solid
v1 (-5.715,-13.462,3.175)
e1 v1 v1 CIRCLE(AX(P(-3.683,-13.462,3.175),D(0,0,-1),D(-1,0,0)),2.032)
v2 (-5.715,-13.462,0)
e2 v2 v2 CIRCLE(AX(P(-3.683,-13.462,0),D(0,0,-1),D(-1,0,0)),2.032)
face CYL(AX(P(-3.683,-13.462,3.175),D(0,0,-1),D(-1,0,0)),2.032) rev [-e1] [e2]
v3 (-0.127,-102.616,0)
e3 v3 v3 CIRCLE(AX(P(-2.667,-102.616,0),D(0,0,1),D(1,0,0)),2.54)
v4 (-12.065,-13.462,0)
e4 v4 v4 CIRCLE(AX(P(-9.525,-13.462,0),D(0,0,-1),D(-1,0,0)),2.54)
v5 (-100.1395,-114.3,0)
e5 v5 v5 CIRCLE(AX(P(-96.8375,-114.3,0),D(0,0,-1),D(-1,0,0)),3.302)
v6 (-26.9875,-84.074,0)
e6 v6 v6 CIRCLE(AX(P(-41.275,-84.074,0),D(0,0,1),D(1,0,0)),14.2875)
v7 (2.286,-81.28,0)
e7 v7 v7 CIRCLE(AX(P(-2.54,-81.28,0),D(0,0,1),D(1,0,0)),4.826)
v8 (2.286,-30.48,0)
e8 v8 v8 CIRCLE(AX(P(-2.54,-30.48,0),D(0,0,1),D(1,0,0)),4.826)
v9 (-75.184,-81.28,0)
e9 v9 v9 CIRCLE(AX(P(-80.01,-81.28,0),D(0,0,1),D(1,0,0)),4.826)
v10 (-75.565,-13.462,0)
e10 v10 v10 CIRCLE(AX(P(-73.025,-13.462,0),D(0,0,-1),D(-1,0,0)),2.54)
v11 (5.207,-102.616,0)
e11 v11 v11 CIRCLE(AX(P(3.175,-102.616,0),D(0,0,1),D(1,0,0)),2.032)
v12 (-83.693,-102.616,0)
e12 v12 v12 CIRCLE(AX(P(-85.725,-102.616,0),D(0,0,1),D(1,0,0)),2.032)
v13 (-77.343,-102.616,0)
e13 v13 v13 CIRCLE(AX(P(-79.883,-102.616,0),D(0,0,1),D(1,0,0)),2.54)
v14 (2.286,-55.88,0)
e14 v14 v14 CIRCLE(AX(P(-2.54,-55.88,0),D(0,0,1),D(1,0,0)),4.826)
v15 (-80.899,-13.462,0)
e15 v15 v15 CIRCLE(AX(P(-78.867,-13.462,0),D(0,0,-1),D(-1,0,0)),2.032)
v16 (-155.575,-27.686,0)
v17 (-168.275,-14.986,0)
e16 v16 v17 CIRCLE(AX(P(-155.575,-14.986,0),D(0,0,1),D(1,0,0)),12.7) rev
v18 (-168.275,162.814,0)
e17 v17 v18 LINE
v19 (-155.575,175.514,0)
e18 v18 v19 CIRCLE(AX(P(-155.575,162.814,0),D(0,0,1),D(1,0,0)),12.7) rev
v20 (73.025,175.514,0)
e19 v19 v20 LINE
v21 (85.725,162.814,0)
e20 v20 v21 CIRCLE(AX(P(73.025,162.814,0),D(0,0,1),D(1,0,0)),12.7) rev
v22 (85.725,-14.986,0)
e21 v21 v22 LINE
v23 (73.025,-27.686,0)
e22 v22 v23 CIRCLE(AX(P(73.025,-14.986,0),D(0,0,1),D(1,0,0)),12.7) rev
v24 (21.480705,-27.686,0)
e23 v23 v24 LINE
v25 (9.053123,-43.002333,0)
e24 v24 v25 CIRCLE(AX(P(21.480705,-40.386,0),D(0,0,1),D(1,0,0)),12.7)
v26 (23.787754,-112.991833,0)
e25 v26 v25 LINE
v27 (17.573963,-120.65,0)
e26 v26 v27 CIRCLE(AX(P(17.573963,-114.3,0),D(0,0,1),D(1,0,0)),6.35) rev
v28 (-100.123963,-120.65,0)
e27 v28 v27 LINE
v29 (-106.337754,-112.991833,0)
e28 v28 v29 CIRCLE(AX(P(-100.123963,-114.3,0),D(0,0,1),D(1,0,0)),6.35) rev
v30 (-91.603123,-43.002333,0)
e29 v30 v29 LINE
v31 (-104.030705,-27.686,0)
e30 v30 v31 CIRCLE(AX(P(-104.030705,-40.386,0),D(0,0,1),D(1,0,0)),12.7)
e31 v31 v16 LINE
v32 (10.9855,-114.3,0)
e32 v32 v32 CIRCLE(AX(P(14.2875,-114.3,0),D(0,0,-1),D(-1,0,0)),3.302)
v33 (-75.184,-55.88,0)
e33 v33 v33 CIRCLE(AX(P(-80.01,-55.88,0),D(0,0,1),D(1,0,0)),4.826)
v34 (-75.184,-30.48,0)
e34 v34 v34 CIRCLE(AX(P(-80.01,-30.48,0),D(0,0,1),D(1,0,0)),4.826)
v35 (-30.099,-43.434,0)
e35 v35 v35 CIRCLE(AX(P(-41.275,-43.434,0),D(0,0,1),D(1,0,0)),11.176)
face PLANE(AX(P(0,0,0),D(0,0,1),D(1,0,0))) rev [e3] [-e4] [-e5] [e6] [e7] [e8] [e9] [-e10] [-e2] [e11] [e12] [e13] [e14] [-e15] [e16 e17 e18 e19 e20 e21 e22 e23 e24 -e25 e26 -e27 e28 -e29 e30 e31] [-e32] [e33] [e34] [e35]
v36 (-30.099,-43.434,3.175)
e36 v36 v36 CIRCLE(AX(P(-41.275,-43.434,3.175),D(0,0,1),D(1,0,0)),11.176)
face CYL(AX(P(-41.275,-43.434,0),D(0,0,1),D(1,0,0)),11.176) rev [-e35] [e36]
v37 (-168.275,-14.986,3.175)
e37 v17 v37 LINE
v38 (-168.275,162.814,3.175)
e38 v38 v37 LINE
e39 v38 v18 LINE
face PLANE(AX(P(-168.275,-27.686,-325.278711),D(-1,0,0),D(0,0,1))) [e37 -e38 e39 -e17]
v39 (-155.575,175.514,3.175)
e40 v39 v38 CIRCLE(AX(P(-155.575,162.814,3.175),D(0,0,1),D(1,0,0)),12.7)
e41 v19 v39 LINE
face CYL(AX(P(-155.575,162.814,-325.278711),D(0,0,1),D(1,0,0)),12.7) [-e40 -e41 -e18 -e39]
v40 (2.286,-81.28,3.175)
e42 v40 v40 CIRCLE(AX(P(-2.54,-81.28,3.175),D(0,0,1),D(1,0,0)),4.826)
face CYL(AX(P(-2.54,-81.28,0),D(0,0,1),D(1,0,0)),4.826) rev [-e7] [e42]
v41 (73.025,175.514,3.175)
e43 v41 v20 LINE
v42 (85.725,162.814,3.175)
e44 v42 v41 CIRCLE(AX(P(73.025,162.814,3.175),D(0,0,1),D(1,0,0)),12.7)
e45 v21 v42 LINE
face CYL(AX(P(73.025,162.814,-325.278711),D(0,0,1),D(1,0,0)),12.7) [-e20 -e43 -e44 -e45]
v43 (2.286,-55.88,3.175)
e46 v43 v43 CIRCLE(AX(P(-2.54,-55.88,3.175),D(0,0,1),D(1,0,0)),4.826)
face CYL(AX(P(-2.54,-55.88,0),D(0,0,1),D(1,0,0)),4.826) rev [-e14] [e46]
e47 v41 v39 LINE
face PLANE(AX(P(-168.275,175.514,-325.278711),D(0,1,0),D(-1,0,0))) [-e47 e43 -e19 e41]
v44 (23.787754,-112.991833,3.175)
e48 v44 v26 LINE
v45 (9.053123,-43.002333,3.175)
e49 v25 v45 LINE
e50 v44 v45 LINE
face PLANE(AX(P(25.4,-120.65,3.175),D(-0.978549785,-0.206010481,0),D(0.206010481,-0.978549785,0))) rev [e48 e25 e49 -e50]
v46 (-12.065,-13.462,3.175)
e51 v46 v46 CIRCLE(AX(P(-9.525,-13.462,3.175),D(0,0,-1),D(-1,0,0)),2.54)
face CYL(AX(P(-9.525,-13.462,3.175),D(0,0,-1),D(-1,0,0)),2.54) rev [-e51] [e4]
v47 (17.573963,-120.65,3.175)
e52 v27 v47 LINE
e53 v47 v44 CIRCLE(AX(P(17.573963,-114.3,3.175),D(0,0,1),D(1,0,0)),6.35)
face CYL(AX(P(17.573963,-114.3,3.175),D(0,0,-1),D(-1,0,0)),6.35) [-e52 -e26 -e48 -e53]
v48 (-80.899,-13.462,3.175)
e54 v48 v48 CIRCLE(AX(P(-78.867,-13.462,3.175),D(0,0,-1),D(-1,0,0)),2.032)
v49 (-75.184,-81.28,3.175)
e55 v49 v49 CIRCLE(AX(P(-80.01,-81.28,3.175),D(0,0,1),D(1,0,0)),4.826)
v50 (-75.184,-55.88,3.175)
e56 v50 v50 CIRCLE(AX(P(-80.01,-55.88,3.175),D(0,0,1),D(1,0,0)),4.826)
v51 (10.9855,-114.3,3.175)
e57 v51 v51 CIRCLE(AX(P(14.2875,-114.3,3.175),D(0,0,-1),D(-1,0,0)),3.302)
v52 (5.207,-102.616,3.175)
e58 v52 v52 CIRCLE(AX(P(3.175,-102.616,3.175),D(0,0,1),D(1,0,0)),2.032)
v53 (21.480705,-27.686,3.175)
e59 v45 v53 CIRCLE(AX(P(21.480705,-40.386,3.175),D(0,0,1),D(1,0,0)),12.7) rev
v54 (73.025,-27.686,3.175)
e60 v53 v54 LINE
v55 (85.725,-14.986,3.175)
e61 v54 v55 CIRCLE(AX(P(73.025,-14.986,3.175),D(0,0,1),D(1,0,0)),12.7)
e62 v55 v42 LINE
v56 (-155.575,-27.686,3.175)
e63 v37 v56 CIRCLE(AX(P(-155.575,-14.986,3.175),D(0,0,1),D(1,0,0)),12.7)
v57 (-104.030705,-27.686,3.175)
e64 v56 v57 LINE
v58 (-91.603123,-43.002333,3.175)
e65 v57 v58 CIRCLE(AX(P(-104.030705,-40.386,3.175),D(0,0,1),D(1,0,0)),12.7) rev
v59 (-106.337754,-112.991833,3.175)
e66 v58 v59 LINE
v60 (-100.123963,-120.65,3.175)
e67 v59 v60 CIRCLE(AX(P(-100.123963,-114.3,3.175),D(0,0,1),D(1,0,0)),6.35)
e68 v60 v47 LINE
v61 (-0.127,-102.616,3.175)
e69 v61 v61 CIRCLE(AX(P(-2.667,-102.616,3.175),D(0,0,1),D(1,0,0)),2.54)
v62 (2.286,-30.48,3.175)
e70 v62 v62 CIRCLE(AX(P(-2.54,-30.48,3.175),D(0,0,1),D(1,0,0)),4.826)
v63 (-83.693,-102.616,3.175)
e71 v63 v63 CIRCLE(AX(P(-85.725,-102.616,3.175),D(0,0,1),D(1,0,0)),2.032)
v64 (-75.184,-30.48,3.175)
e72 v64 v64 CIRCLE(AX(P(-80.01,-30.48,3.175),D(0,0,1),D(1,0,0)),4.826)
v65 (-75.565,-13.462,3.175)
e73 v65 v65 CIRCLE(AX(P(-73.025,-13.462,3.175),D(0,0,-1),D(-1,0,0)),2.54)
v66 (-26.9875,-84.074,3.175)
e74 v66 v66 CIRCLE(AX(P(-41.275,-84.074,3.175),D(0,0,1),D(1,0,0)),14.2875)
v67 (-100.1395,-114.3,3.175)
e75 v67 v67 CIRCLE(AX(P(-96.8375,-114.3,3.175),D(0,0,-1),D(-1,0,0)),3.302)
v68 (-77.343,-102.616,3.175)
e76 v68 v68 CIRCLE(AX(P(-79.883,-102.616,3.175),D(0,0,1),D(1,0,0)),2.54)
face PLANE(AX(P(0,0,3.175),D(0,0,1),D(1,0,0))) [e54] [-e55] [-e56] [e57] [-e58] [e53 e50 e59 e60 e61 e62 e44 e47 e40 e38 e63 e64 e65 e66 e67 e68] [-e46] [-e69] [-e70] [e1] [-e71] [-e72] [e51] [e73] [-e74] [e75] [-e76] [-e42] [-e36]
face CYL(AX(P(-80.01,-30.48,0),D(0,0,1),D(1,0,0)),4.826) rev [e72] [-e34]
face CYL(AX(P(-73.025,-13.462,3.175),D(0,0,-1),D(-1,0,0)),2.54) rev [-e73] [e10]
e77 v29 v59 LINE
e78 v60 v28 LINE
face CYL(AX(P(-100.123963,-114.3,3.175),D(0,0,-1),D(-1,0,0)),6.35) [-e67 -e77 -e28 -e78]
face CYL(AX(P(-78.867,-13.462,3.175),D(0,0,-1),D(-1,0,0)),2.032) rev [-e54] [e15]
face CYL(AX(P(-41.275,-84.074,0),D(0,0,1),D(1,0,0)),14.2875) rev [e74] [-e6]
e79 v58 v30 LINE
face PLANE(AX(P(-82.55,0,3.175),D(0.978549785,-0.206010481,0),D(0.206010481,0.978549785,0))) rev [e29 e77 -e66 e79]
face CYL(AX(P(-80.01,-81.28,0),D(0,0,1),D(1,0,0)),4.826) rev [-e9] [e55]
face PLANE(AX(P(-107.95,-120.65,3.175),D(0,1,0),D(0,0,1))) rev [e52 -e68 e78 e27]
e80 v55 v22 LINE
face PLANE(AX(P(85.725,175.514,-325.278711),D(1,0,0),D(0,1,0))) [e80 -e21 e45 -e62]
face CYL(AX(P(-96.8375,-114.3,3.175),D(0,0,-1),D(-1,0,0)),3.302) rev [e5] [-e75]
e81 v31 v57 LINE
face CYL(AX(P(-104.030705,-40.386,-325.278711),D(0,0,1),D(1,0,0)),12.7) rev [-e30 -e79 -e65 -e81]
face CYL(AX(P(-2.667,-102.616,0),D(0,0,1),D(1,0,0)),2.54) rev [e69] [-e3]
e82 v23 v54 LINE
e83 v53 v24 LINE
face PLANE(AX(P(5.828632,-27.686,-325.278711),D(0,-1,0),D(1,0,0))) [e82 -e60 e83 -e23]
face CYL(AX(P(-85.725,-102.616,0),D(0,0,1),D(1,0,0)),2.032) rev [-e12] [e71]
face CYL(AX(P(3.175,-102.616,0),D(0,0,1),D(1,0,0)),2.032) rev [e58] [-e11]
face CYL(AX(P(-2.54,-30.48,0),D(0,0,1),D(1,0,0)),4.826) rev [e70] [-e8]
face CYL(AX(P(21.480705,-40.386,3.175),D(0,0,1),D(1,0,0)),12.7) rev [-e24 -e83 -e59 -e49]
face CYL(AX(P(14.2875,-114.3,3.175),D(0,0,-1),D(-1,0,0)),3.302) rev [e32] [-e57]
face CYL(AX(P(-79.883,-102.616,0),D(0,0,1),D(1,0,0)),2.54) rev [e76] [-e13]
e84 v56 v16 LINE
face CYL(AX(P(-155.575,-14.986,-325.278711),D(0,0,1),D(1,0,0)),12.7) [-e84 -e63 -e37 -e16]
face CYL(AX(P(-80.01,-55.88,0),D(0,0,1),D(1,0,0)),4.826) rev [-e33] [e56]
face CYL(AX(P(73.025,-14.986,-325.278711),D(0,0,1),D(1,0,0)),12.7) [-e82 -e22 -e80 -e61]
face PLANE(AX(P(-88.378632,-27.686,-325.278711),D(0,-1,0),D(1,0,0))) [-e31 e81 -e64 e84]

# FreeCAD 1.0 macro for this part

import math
import FreeCAD as App
import Part
import Sketcher
Q = App.Units.Quantity


def edges_at(feature, points):
    """Names of the edges that pass closest to the given points."""
    edges = feature.Shape.Edges
    near = lambda p: min(range(len(edges)), key=lambda i: edges[i].distToShape(Part.Vertex(*p))[0])
    return sorted({f"Edge{near(p) + 1}" for p in points})


def add_polygon(sketch, points):
    """Adds a closed chain of lines whose ends are joined by coincident constraints."""
    first, n = sketch.GeometryCount, len(points)
    for a, b in zip(points, points[1:] + points[:1]):
        sketch.addGeometry(Part.LineSegment(App.Vector(*a, 0), App.Vector(*b, 0)), False)
    for i in range(n):
        sketch.addConstraint(Sketcher.Constraint("Coincident", first + i, 2, first + (i + 1) % n, 1))

doc = App.newDocument("Part")
body = doc.addObject("PartDesign::Body", "Body")

sketch1 = body.newObject("Sketcher::SketchObject", "Sketch")
sketch1.AttachmentSupport = (doc.getObject("XY_Plane"), [""])
sketch1.MapMode = "FlatFace"
add_polygon(sketch1, [(0, 0), (-83, 0), (-108, -121), (25, -121)])
sketch1.addConstraint(Sketcher.Constraint("Horizontal", 0))
sketch1.addConstraint(Sketcher.Constraint("Horizontal", 2))
sketch1.addConstraint(Sketcher.Constraint("Coincident", 3, 2, -1, 1))
sketch1.addConstraint(Sketcher.Constraint("Equal", 1, 3))
sketch1.addConstraint(Sketcher.Constraint("DistanceX", -1, 1, 2, 2, Q("1 in")))
sketch1.addConstraint(Sketcher.Constraint("DistanceX", 0, 2, 0, 1, Q("3.25 in")))
sketch1.addConstraint(Sketcher.Constraint("DistanceY", 1, 2, -1, 1, Q("4.75 in")))
pad1 = body.newObject("PartDesign::Pad", "Pad")
pad1.Profile = sketch1
pad1.Length = Q("0.125 in")
doc.recompute()

fillet = body.newObject("PartDesign::Fillet", "Fillet")
fillet.Base = (pad1, edges_at(pad1, [
    (25.4, -120.65, 1.587),
    (-107.95, -120.65, 1.587),
    (-82.55, 0, 1.587),
    (0, 0, 1.587),
]))
fillet.Radius = Q("0.25 in")

sketch2 = body.newObject("Sketcher::SketchObject", "Sketch001")
sketch2.AttachmentSupport = (doc.getObject("XY_Plane"), [""])
sketch2.MapMode = "FlatFace"
sketch2.addGeometry(Part.Circle(App.Vector(14.3, -114.3, 0), App.Vector(0, 0, 1), 3.3), False)
sketch2.addGeometry(Part.Circle(App.Vector(-96.8, -114.3, 0), App.Vector(0, 0, 1), 3.3), False)
sketch2.addConstraint(Sketcher.Constraint("Equal", 0, 1))
sketch2.addConstraint(Sketcher.Constraint("Horizontal", 0, 3, 1, 3))
sketch2.addConstraint(Sketcher.Constraint("Diameter", 0, Q("0.26 in")))
sketch2.addConstraint(Sketcher.Constraint("DistanceY", 0, 3, -1, 1, Q("4.5 in")))
sketch2.addConstraint(Sketcher.Constraint("DistanceX", -1, 1, 0, 3, Q("0.5625 in")))
sketch2.addConstraint(Sketcher.Constraint("DistanceX", 1, 3, -1, 1, Q("3.8125 in")))
pocket1 = body.newObject("PartDesign::Pocket", "Pocket")
pocket1.Profile = sketch2
pocket1.Type = "ThroughAll"
pocket1.Reversed = True

sketch3 = body.newObject("Sketcher::SketchObject", "Sketch002")
sketch3.AttachmentSupport = (doc.getObject("XY_Plane"), [""])
sketch3.MapMode = "FlatFace"
sketch3.addGeometry(Part.Circle(App.Vector(-9.5, -13.5, 0), App.Vector(0, 0, 1), 2.5), False)
sketch3.addGeometry(Part.Circle(App.Vector(-73, -13.5, 0), App.Vector(0, 0, 1), 2.5), False)
sketch3.addGeometry(Part.Circle(App.Vector(-3.7, -13.5, 0), App.Vector(0, 0, 1), 2), False)
sketch3.addGeometry(Part.Circle(App.Vector(-78.9, -13.5, 0), App.Vector(0, 0, 1), 2), False)
sketch3.addConstraint(Sketcher.Constraint("Equal", 0, 1))
sketch3.addConstraint(Sketcher.Constraint("Equal", 2, 3))
sketch3.addConstraint(Sketcher.Constraint("Horizontal", 0, 3, 1, 3))
sketch3.addConstraint(Sketcher.Constraint("Horizontal", 1, 3, 2, 3))
sketch3.addConstraint(Sketcher.Constraint("Horizontal", 2, 3, 3, 3))
sketch3.addConstraint(Sketcher.Constraint("Diameter", 0, Q("0.2 in")))
sketch3.addConstraint(Sketcher.Constraint("Diameter", 2, Q("0.16 in")))
sketch3.addConstraint(Sketcher.Constraint("DistanceX", 1, 3, 0, 3, Q("2.5 in")))
sketch3.addConstraint(Sketcher.Constraint("DistanceY", 0, 3, -1, 1, Q("0.53 in")))
sketch3.addConstraint(Sketcher.Constraint("DistanceX", 0, 3, 2, 3, Q("0.23 in")))
sketch3.addConstraint(Sketcher.Constraint("DistanceX", 3, 3, 1, 3, Q("0.23 in")))
sketch3.addConstraint(Sketcher.Constraint("DistanceX", 0, 3, -1, 1, Q("0.375 in")))
pocket2 = body.newObject("PartDesign::Pocket", "Pocket001")
pocket2.Profile = sketch3
pocket2.Type = "ThroughAll"
pocket2.Reversed = True

sketch4 = body.newObject("Sketcher::SketchObject", "Sketch003")
sketch4.AttachmentSupport = (doc.getObject("XY_Plane"), [""])
sketch4.MapMode = "FlatFace"
sketch4.AttachmentOffset = App.Placement(App.Vector(0, 0, 0.125 * 25.4), App.Rotation())
sketch4.addGeometry(Part.Circle(App.Vector(-41.3, -84.1, 0), App.Vector(0, 0, 1), 14.3), False)
sketch4.addGeometry(Part.Circle(App.Vector(-41.3, -43.4, 0), App.Vector(0, 0, 1), 11.2), False)
sketch4.addGeometry(Part.Circle(App.Vector(-2.7, -102.6, 0), App.Vector(0, 0, 1), 2.5), False)
sketch4.addGeometry(Part.Circle(App.Vector(-79.9, -102.6, 0), App.Vector(0, 0, 1), 2.5), False)
sketch4.addGeometry(Part.Circle(App.Vector(-85.7, -102.6, 0), App.Vector(0, 0, 1), 2), False)
sketch4.addGeometry(Part.Circle(App.Vector(3.2, -102.6, 0), App.Vector(0, 0, 1), 2), False)
sketch4.addConstraint(Sketcher.Constraint("Equal", 2, 3))
sketch4.addConstraint(Sketcher.Constraint("Equal", 4, 5))
sketch4.addConstraint(Sketcher.Constraint("Horizontal", 2, 3, 3, 3))
sketch4.addConstraint(Sketcher.Constraint("Horizontal", 3, 3, 4, 3))
sketch4.addConstraint(Sketcher.Constraint("Horizontal", 4, 3, 5, 3))
sketch4.addConstraint(Sketcher.Constraint("Vertical", 0, 3, 1, 3))
sketch4.addConstraint(Sketcher.Constraint("Diameter", 2, Q("0.2 in")))
sketch4.addConstraint(Sketcher.Constraint("Diameter", 1, Q("0.88 in")))
sketch4.addConstraint(Sketcher.Constraint("Diameter", 4, Q("0.16 in")))
sketch4.addConstraint(Sketcher.Constraint("Diameter", 0, Q("1.125 in")))
sketch4.addConstraint(Sketcher.Constraint("DistanceY", 0, 3, 1, 3, Q("1.6 in")))
sketch4.addConstraint(Sketcher.Constraint("DistanceX", 4, 3, 5, 3, Q("3.5 in")))
sketch4.addConstraint(Sketcher.Constraint("DistanceY", 0, 3, -1, 1, Q("3.31 in")))
sketch4.addConstraint(Sketcher.Constraint("DistanceY", 2, 3, -1, 1, Q("4.04 in")))
sketch4.addConstraint(Sketcher.Constraint("DistanceX", 0, 3, 2, 3, Q("1.52 in")))
sketch4.addConstraint(Sketcher.Constraint("DistanceX", 3, 3, 0, 3, Q("1.52 in")))
sketch4.addConstraint(Sketcher.Constraint("DistanceX", 4, 3, 3, 3, Q("0.23 in")))
sketch4.addConstraint(Sketcher.Constraint("DistanceX", 0, 3, -1, 1, Q("1.625 in")))
pocket3 = body.newObject("PartDesign::Pocket", "Pocket002")
pocket3.Profile = sketch4
pocket3.Type = "ThroughAll"

sketch5 = body.newObject("Sketcher::SketchObject", "Sketch004")
sketch5.AttachmentSupport = (doc.getObject("XY_Plane"), [""])
sketch5.MapMode = "FlatFace"
sketch5.AttachmentOffset = App.Placement(App.Vector(0, 0, 0.125 * 25.4), App.Rotation())
sketch5.addGeometry(Part.Circle(App.Vector(-80, -30.5, 0), App.Vector(0, 0, 1), 4.8), False)
sketch5.addGeometry(Part.Circle(App.Vector(-80, -55.9, 0), App.Vector(0, 0, 1), 4.8), False)
sketch5.addGeometry(Part.Circle(App.Vector(-80, -81.3, 0), App.Vector(0, 0, 1), 4.8), False)
sketch5.addGeometry(Part.Circle(App.Vector(-2.5, -81.3, 0), App.Vector(0, 0, 1), 4.8), False)
sketch5.addGeometry(Part.Circle(App.Vector(-2.5, -55.9, 0), App.Vector(0, 0, 1), 4.8), False)
sketch5.addGeometry(Part.Circle(App.Vector(-2.5, -30.5, 0), App.Vector(0, 0, 1), 4.8), False)
sketch5.addConstraint(Sketcher.Constraint("Equal", 0, 1))
sketch5.addConstraint(Sketcher.Constraint("Equal", 1, 2))
sketch5.addConstraint(Sketcher.Constraint("Equal", 2, 3))
sketch5.addConstraint(Sketcher.Constraint("Equal", 3, 4))
sketch5.addConstraint(Sketcher.Constraint("Equal", 4, 5))
sketch5.addConstraint(Sketcher.Constraint("Horizontal", 2, 3, 3, 3))
sketch5.addConstraint(Sketcher.Constraint("Horizontal", 1, 3, 4, 3))
sketch5.addConstraint(Sketcher.Constraint("Horizontal", 0, 3, 5, 3))
sketch5.addConstraint(Sketcher.Constraint("Vertical", 0, 3, 1, 3))
sketch5.addConstraint(Sketcher.Constraint("Vertical", 1, 3, 2, 3))
sketch5.addConstraint(Sketcher.Constraint("Vertical", 3, 3, 4, 3))
sketch5.addConstraint(Sketcher.Constraint("Vertical", 4, 3, 5, 3))
sketch5.addConstraint(Sketcher.Constraint("Diameter", 0, Q("0.38 in")))
sketch5.addConstraint(Sketcher.Constraint("DistanceY", 1, 3, 0, 3, Q("1 in")))
sketch5.addConstraint(Sketcher.Constraint("DistanceY", 2, 3, 1, 3, Q("1 in")))
sketch5.addConstraint(Sketcher.Constraint("DistanceY", 0, 3, -1, 1, Q("1.2 in")))
sketch5.addConstraint(Sketcher.Constraint("DistanceX", 3, 3, -1, 1, Q("0.1 in")))
sketch5.addConstraint(Sketcher.Constraint("DistanceX", 0, 3, -1, 1, Q("3.15 in")))
pocket4 = body.newObject("PartDesign::Pocket", "Pocket003")
pocket4.Profile = sketch5
pocket4.Type = "ThroughAll"

sketch6 = body.newObject("Sketcher::SketchObject", "Sketch005")
sketch6.AttachmentSupport = (doc.getObject("XY_Plane"), [""])
sketch6.MapMode = "FlatFace"
sketch6.AttachmentOffset = App.Placement(App.Vector(0, 0, 0.125 * 25.4), App.Rotation())
sketch6.addGeometry(Part.LineSegment(App.Vector(-168, -28, 0), App.Vector(-88, -28, 0)), False)
sketch6.addGeometry(Part.LineSegment(App.Vector(-88, -28, 0), App.Vector(-84, -5, 0)), False)
sketch6.addGeometry(Part.ArcOfCircle(Part.Circle(App.Vector(-77, -6, 0), App.Vector(0, 0, 1), 6), math.radians(90), math.radians(168)), False)
sketch6.addGeometry(Part.LineSegment(App.Vector(-77, 0, 0), App.Vector(-5, 0, 0)), False)
sketch6.addGeometry(Part.ArcOfCircle(Part.Circle(App.Vector(-5, -6, 0), App.Vector(0, 0, 1), 6), math.radians(12), math.radians(90)), False)
sketch6.addGeometry(Part.LineSegment(App.Vector(1, -5, 0), App.Vector(6, -28, 0)), False)
sketch6.addGeometry(Part.LineSegment(App.Vector(6, -28, 0), App.Vector(86, -28, 0)), False)
sketch6.addGeometry(Part.LineSegment(App.Vector(86, -28, 0), App.Vector(86, 176, 0)), False)
sketch6.addGeometry(Part.LineSegment(App.Vector(86, 176, 0), App.Vector(-168, 176, 0)), False)
sketch6.addGeometry(Part.LineSegment(App.Vector(-168, 176, 0), App.Vector(-168, -28, 0)), False)
sketch6.addConstraint(Sketcher.Constraint("Coincident", 0, 2, 1, 1))
sketch6.addConstraint(Sketcher.Constraint("Tangent", 1, 2, 2, 2))
sketch6.addConstraint(Sketcher.Constraint("Tangent", 2, 1, 3, 1))
sketch6.addConstraint(Sketcher.Constraint("Tangent", 3, 2, 4, 2))
sketch6.addConstraint(Sketcher.Constraint("Tangent", 4, 1, 5, 1))
sketch6.addConstraint(Sketcher.Constraint("Coincident", 5, 2, 6, 1))
sketch6.addConstraint(Sketcher.Constraint("Coincident", 6, 2, 7, 1))
sketch6.addConstraint(Sketcher.Constraint("Coincident", 7, 2, 8, 1))
sketch6.addConstraint(Sketcher.Constraint("Coincident", 8, 2, 9, 1))
sketch6.addConstraint(Sketcher.Constraint("Coincident", 9, 2, 0, 1))
sketch6.addConstraint(Sketcher.Constraint("Horizontal", 0))
sketch6.addConstraint(Sketcher.Constraint("Horizontal", 3))
sketch6.addConstraint(Sketcher.Constraint("Horizontal", 6))
sketch6.addConstraint(Sketcher.Constraint("Vertical", 7))
sketch6.addConstraint(Sketcher.Constraint("Horizontal", 8))
sketch6.addConstraint(Sketcher.Constraint("Vertical", 9))
sketch6.addConstraint(Sketcher.Constraint("Equal", 2, 4))
sketch6.addConstraint(Sketcher.Constraint("PointOnObject", 2, 1, -1))
sketch6.addConstraint(Sketcher.Constraint("Horizontal", 1, 2, 4, 1))
sketch6.addConstraint(Sketcher.Constraint("Horizontal", 0, 2, 5, 2))
sketch6.addConstraint(Sketcher.Constraint("Equal", 0, 6))
sketch6.addConstraint(Sketcher.Constraint("DistanceX", 8, 2, 8, 1, Q("10 in")))
sketch6.addConstraint(Sketcher.Constraint("DistanceY", 7, 1, 7, 2, Q("8 in")))
sketch6.addConstraint(Sketcher.Constraint("Radius", 2, Q("0.25 in")))
sketch6.addConstraint(Sketcher.Constraint("DistanceY", 0, 2, -1, 1, Q("1.09 in")))
sketch6.addConstraint(Sketcher.Constraint("DistanceX", -1, 1, 6, 2, Q("3.375 in")))
sketch6.addConstraint(Sketcher.Constraint("DistanceX", 0, 1, 0, 2, Q("79.896368 mm")))
sketch6.addConstraint(Sketcher.Constraint("DistanceX", 3, 1, 3, 2, Q("72.245295 mm")))
pad2 = body.newObject("PartDesign::Pad", "Pad001")
pad2.Profile = sketch6
pad2.Length = Q("0.125 in")
pad2.Reversed = True
doc.recompute()

fillet2 = body.newObject("PartDesign::Fillet", "Fillet001")
fillet2.Base = (pad2, edges_at(pad2, [(-88.379, -27.686, 1.587), (5.829, -27.686, 1.587)]))
fillet2.Radius = Q("0.5 in")
doc.recompute()

fillet3 = body.newObject("PartDesign::Fillet", "Fillet002")
fillet3.Base = (fillet2, edges_at(fillet2, [
    (-168.275, -27.686, 1.587),
    (-168.275, 175.514, 1.587),
    (85.725, 175.514, 1.587),
    (85.725, -27.686, 1.587),
]))
fillet3.Radius = Q("0.5 in")

doc.recompute()
